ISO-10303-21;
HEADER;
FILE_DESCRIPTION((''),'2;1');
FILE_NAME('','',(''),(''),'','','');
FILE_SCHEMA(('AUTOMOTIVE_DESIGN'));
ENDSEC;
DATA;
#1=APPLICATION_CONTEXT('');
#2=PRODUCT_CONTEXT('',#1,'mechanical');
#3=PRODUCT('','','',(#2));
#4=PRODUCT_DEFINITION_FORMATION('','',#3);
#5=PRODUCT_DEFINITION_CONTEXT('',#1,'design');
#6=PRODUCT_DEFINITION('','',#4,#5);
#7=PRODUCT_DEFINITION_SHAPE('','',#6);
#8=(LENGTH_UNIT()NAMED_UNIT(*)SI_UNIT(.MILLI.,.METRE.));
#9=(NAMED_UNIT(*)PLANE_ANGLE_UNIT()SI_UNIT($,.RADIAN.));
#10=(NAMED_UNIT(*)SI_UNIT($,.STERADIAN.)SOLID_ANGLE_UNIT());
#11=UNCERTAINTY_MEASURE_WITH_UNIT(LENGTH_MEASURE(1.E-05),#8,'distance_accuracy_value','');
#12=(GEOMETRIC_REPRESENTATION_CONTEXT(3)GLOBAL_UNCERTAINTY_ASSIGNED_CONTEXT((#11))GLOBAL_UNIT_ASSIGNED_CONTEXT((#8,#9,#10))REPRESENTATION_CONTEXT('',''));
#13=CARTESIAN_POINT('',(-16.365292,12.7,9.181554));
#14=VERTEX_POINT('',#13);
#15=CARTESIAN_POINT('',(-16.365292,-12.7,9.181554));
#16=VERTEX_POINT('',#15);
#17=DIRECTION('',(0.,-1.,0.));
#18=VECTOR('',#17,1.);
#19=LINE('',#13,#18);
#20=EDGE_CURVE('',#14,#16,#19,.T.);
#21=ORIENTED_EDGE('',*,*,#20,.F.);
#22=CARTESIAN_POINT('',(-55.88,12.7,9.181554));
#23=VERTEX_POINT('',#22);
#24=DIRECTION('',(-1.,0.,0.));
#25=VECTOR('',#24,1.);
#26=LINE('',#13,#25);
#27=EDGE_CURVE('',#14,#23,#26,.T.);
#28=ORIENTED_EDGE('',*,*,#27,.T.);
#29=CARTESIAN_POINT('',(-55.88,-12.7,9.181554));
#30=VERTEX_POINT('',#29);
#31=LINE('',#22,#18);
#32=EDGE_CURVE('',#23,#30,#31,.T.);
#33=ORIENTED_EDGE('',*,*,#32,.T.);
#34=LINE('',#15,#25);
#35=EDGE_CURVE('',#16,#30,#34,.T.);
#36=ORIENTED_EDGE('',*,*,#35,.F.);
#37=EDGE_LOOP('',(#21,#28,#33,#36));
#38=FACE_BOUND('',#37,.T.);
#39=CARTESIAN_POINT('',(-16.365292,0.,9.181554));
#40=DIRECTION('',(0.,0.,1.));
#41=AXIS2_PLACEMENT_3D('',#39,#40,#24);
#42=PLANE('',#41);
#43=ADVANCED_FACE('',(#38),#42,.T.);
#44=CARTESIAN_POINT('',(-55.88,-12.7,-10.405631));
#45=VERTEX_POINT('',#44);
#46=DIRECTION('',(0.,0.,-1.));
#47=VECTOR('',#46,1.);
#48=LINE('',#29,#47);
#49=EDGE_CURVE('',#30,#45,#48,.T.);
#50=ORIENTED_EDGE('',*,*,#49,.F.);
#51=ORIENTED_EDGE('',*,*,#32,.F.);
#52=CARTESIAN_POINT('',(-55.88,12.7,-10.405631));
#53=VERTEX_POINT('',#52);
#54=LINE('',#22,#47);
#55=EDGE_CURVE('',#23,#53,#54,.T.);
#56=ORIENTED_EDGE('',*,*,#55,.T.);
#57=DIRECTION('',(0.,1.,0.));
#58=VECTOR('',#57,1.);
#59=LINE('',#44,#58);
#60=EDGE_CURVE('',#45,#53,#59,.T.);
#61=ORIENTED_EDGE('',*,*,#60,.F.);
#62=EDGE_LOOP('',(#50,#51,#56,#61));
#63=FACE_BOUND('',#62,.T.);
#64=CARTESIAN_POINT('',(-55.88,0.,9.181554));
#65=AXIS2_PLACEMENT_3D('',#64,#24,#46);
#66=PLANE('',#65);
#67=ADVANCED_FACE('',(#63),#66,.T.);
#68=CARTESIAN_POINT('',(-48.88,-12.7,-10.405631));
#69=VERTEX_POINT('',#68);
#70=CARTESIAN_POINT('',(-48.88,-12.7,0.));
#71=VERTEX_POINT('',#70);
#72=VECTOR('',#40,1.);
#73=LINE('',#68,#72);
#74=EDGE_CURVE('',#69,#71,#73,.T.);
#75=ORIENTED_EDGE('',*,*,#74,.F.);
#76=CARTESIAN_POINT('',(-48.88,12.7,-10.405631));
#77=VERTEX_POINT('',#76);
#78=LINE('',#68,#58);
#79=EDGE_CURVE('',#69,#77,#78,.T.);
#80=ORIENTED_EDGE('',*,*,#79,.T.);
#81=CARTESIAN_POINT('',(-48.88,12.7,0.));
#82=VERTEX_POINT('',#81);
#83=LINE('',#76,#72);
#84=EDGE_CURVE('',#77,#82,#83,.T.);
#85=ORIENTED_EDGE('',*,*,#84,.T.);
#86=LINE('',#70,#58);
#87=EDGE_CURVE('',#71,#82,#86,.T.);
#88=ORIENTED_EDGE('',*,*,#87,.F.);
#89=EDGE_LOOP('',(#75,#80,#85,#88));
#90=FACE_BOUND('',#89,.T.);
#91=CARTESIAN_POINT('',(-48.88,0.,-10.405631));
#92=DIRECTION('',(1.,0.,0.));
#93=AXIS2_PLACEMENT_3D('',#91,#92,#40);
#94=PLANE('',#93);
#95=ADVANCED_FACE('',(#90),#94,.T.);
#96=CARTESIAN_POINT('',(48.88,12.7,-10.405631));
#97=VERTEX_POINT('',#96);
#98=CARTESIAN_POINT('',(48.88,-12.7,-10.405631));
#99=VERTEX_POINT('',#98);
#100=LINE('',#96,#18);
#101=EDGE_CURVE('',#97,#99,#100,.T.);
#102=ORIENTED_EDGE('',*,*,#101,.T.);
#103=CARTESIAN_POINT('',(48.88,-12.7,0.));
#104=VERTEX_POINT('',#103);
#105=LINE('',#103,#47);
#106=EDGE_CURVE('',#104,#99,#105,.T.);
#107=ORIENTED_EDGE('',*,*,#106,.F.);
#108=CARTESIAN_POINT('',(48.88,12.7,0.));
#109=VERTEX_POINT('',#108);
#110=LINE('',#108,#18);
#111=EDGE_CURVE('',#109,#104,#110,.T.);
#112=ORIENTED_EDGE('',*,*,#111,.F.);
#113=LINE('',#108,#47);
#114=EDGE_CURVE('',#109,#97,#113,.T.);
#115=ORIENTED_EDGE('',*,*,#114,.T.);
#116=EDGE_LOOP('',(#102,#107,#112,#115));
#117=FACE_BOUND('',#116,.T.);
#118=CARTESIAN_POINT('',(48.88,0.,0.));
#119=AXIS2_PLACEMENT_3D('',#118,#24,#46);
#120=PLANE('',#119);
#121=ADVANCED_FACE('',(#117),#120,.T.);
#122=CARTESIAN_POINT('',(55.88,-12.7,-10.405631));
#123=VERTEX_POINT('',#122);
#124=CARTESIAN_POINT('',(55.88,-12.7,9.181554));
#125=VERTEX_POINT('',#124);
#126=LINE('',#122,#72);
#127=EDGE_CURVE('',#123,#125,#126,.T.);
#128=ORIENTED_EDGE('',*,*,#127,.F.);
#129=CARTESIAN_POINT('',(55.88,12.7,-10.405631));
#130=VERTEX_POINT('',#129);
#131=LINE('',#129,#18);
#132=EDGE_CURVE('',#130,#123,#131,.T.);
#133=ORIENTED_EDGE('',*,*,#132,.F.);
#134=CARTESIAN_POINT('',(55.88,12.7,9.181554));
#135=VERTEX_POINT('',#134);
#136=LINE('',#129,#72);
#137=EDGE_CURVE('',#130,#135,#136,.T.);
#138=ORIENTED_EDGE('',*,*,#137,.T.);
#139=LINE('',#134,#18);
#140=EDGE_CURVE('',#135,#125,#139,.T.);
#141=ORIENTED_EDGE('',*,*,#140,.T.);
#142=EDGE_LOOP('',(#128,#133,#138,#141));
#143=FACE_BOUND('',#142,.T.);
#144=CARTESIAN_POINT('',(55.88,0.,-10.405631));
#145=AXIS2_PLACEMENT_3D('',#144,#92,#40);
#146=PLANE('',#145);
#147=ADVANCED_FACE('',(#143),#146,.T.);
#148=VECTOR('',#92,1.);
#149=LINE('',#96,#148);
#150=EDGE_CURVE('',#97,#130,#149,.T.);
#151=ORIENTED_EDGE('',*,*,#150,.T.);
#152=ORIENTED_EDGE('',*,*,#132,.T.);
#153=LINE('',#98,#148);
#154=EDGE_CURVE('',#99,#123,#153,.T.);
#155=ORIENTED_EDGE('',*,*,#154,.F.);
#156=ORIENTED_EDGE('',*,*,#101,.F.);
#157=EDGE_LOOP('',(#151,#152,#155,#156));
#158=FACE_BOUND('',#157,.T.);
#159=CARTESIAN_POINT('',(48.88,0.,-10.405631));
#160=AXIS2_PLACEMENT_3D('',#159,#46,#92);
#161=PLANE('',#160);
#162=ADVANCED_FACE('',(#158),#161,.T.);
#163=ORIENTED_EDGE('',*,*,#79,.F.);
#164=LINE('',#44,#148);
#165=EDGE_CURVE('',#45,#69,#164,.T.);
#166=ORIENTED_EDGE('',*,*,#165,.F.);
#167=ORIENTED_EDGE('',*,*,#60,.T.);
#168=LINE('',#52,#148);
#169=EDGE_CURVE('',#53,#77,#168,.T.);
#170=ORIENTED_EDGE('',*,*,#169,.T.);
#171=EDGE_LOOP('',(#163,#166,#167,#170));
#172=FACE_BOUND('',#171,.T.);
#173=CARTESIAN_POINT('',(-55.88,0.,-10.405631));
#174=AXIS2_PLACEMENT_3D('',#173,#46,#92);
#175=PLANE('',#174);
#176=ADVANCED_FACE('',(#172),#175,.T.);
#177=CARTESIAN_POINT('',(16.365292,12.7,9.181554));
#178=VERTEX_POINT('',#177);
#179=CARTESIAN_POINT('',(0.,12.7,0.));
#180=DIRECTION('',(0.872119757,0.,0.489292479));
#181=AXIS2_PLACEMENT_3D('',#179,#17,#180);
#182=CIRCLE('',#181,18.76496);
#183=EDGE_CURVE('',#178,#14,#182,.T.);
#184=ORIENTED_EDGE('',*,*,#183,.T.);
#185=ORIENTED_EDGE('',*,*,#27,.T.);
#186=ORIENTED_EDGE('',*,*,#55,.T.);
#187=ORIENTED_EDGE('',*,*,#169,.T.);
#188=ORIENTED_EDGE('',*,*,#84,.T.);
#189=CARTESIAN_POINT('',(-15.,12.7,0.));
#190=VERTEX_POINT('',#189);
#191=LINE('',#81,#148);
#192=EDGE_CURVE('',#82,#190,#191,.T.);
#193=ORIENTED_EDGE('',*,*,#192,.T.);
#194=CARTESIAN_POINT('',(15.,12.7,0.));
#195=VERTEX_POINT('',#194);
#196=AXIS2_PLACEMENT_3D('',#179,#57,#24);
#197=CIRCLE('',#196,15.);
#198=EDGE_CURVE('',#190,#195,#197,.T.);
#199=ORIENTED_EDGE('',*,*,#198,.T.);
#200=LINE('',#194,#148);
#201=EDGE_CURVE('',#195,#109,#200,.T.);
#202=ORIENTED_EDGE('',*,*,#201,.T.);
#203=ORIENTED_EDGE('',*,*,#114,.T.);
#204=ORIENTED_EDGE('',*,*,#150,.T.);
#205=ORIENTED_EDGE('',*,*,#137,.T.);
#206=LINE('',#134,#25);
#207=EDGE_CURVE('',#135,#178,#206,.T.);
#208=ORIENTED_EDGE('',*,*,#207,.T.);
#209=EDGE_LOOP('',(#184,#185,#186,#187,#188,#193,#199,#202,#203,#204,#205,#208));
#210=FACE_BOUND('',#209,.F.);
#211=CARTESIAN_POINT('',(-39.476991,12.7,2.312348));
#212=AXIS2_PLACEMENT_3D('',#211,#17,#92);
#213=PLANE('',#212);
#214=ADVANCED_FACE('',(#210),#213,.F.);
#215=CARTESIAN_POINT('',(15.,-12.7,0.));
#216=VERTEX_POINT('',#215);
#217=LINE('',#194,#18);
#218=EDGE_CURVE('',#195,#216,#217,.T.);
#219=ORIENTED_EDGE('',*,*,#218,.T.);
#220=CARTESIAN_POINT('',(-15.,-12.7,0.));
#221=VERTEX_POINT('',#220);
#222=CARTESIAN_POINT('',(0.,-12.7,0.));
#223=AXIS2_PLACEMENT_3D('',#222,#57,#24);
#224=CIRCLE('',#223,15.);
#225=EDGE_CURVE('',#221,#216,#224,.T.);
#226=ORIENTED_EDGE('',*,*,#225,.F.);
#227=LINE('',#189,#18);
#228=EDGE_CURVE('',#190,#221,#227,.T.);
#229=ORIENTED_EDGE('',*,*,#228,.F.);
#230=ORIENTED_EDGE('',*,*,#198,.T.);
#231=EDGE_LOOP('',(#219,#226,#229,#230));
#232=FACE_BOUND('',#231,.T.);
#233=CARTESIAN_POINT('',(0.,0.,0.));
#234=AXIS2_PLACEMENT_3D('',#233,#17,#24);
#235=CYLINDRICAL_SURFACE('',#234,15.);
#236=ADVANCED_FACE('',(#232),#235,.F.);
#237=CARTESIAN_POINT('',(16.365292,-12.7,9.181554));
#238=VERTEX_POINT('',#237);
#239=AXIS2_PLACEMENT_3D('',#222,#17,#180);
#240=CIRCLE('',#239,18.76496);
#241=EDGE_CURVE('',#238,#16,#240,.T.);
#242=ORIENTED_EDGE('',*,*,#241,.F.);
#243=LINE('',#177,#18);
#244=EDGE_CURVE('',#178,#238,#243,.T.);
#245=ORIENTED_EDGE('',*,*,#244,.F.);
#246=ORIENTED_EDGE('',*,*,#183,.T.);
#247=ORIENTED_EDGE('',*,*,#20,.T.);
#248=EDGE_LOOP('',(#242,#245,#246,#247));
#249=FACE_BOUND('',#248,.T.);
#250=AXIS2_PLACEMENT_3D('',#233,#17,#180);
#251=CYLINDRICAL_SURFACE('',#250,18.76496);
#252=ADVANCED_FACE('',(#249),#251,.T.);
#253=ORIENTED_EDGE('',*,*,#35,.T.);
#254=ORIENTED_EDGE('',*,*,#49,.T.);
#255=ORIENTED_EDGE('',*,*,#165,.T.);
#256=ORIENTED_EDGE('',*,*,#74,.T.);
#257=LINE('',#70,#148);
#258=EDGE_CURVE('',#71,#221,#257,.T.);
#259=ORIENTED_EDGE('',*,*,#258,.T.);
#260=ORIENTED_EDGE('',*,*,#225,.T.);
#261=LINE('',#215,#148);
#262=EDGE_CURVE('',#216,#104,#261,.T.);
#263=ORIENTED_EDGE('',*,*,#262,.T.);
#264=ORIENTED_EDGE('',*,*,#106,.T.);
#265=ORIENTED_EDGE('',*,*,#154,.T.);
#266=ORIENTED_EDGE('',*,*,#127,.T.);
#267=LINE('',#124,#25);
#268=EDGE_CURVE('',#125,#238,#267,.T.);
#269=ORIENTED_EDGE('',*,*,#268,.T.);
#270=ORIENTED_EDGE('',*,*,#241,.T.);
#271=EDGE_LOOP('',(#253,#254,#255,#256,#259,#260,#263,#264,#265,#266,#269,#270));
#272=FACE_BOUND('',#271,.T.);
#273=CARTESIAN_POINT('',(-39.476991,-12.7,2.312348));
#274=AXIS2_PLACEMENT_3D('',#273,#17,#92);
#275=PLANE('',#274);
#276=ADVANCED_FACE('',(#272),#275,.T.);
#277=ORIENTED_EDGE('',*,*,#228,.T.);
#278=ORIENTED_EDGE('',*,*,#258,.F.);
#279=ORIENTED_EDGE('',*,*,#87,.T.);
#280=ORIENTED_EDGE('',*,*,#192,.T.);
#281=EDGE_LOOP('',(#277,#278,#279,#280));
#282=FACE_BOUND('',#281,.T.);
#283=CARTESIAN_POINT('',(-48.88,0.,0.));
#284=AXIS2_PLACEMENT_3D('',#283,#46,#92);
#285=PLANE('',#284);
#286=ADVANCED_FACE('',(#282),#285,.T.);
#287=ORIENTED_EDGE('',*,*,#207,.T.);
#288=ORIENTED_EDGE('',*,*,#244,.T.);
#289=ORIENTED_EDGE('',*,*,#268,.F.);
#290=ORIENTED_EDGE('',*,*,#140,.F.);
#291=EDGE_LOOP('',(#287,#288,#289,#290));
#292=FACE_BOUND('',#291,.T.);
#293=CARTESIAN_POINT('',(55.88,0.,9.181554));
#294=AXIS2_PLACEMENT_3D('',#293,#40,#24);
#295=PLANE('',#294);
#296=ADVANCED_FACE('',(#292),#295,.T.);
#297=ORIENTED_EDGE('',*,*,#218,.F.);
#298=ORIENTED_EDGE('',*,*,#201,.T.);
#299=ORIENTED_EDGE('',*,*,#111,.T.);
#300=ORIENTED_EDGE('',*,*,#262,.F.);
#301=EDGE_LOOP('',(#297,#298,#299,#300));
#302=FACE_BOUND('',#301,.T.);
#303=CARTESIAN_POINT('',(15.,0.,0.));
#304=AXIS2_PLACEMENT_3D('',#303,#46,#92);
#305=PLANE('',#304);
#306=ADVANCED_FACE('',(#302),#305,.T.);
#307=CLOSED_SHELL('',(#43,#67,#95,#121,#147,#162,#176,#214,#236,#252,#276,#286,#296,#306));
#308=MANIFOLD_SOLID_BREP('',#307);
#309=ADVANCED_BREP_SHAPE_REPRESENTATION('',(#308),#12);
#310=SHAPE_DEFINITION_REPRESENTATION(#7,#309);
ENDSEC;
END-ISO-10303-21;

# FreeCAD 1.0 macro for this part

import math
import FreeCAD as App
import Part
import Sketcher

doc = App.newDocument("Part")
body = doc.addObject("PartDesign::Body", "Body")

# Sketch on XZ plane
sketch1 = doc.addObject("Sketcher::SketchObject", "Sketch")
body.addObject(sketch1)
sketch1.AttachmentSupport = (doc.XZ_Plane, [""])
sketch1.MapMode = "FlatFace"
sketch1.addGeometry(Part.LineSegment(App.Vector(-49, 0, 0), App.Vector(-15, 0, 0)), False)
sketch1.addGeometry(Part.ArcOfCircle(Part.Circle(App.Vector(0, 0, 0), App.Vector(0, 0, 1), 15), math.radians(0), math.radians(180)), False)
sketch1.addGeometry(Part.LineSegment(App.Vector(15, 0, 0), App.Vector(49, 0, 0)), False)
sketch1.addGeometry(Part.LineSegment(App.Vector(49, 0, 0), App.Vector(49, -10, 0)), False)
sketch1.addGeometry(Part.LineSegment(App.Vector(49, -10, 0), App.Vector(56, -10, 0)), False)
sketch1.addGeometry(Part.LineSegment(App.Vector(56, -10, 0), App.Vector(56, 9, 0)), False)
sketch1.addGeometry(Part.LineSegment(App.Vector(56, 9, 0), App.Vector(16, 9, 0)), False)
sketch1.addGeometry(Part.ArcOfCircle(Part.Circle(App.Vector(0, 0, 0), App.Vector(0, 0, 1), 19), math.radians(29), math.radians(151)), False)
sketch1.addGeometry(Part.LineSegment(App.Vector(-16, 9, 0), App.Vector(-56, 9, 0)), False)
sketch1.addGeometry(Part.LineSegment(App.Vector(-56, 9, 0), App.Vector(-56, -10, 0)), False)
sketch1.addGeometry(Part.LineSegment(App.Vector(-56, -10, 0), App.Vector(-49, -10, 0)), False)
sketch1.addGeometry(Part.LineSegment(App.Vector(-49, -10, 0), App.Vector(-49, 0, 0)), False)
sketch1.addConstraint(Sketcher.Constraint("Coincident", 0, 2, 1, 2))
sketch1.addConstraint(Sketcher.Constraint("Coincident", 1, 1, 2, 1))
sketch1.addConstraint(Sketcher.Constraint("Coincident", 2, 2, 3, 1))
sketch1.addConstraint(Sketcher.Constraint("Coincident", 3, 2, 4, 1))
sketch1.addConstraint(Sketcher.Constraint("Coincident", 4, 2, 5, 1))
sketch1.addConstraint(Sketcher.Constraint("Coincident", 5, 2, 6, 1))
sketch1.addConstraint(Sketcher.Constraint("Coincident", 6, 2, 7, 1))
sketch1.addConstraint(Sketcher.Constraint("Coincident", 7, 2, 8, 1))
sketch1.addConstraint(Sketcher.Constraint("Coincident", 8, 2, 9, 1))
sketch1.addConstraint(Sketcher.Constraint("Coincident", 9, 2, 10, 1))
sketch1.addConstraint(Sketcher.Constraint("Coincident", 10, 2, 11, 1))
sketch1.addConstraint(Sketcher.Constraint("Coincident", 11, 2, 0, 1))
sketch1.addConstraint(Sketcher.Constraint("Horizontal", 0))
sketch1.addConstraint(Sketcher.Constraint("Horizontal", 2))
sketch1.addConstraint(Sketcher.Constraint("Vertical", 3))
sketch1.addConstraint(Sketcher.Constraint("Horizontal", 4))
sketch1.addConstraint(Sketcher.Constraint("Vertical", 5))
sketch1.addConstraint(Sketcher.Constraint("Horizontal", 6))
sketch1.addConstraint(Sketcher.Constraint("Horizontal", 8))
sketch1.addConstraint(Sketcher.Constraint("Vertical", 9))
sketch1.addConstraint(Sketcher.Constraint("Horizontal", 10))
sketch1.addConstraint(Sketcher.Constraint("Vertical", 11))
sketch1.addConstraint(Sketcher.Constraint("Coincident", 1, 3, -1, 1))
sketch1.addConstraint(Sketcher.Constraint("Coincident", 7, 3, -1, 1))
sketch1.addConstraint(Sketcher.Constraint("Symmetric", 2, 2, 11, 2, -1, 1))
sketch1.addConstraint(Sketcher.Constraint("Symmetric", 5, 2, 8, 2, -2))
sketch1.addConstraint(Sketcher.Constraint("PointOnObject", 0, 2, -1))
sketch1.addConstraint(Sketcher.Constraint("Horizontal", 4, 2, 9, 2))
sketch1.addConstraint(Sketcher.Constraint("Radius", 1, 15.0))
sketch1.addConstraint(Sketcher.Constraint("DistanceX", 4, 1, 4, 2, 7.0))
sketch1.addConstraint(Sketcher.Constraint("DistanceX", 0, 1, 0, 2, 33.88))
sketch1.addConstraint(Sketcher.Constraint("Radius", 7, 18.76496))
sketch1.addConstraint(Sketcher.Constraint("DistanceY", 3, 2, 3, 1, 10.405631))
sketch1.addConstraint(Sketcher.Constraint("DistanceX", 6, 2, 6, 1, 39.514708))
pad1 = doc.addObject("PartDesign::Pad", "Pad")
body.addObject(pad1)
pad1.Profile = sketch1
pad1.Length = 25.4
pad1.Midplane = True

doc.recompute()
